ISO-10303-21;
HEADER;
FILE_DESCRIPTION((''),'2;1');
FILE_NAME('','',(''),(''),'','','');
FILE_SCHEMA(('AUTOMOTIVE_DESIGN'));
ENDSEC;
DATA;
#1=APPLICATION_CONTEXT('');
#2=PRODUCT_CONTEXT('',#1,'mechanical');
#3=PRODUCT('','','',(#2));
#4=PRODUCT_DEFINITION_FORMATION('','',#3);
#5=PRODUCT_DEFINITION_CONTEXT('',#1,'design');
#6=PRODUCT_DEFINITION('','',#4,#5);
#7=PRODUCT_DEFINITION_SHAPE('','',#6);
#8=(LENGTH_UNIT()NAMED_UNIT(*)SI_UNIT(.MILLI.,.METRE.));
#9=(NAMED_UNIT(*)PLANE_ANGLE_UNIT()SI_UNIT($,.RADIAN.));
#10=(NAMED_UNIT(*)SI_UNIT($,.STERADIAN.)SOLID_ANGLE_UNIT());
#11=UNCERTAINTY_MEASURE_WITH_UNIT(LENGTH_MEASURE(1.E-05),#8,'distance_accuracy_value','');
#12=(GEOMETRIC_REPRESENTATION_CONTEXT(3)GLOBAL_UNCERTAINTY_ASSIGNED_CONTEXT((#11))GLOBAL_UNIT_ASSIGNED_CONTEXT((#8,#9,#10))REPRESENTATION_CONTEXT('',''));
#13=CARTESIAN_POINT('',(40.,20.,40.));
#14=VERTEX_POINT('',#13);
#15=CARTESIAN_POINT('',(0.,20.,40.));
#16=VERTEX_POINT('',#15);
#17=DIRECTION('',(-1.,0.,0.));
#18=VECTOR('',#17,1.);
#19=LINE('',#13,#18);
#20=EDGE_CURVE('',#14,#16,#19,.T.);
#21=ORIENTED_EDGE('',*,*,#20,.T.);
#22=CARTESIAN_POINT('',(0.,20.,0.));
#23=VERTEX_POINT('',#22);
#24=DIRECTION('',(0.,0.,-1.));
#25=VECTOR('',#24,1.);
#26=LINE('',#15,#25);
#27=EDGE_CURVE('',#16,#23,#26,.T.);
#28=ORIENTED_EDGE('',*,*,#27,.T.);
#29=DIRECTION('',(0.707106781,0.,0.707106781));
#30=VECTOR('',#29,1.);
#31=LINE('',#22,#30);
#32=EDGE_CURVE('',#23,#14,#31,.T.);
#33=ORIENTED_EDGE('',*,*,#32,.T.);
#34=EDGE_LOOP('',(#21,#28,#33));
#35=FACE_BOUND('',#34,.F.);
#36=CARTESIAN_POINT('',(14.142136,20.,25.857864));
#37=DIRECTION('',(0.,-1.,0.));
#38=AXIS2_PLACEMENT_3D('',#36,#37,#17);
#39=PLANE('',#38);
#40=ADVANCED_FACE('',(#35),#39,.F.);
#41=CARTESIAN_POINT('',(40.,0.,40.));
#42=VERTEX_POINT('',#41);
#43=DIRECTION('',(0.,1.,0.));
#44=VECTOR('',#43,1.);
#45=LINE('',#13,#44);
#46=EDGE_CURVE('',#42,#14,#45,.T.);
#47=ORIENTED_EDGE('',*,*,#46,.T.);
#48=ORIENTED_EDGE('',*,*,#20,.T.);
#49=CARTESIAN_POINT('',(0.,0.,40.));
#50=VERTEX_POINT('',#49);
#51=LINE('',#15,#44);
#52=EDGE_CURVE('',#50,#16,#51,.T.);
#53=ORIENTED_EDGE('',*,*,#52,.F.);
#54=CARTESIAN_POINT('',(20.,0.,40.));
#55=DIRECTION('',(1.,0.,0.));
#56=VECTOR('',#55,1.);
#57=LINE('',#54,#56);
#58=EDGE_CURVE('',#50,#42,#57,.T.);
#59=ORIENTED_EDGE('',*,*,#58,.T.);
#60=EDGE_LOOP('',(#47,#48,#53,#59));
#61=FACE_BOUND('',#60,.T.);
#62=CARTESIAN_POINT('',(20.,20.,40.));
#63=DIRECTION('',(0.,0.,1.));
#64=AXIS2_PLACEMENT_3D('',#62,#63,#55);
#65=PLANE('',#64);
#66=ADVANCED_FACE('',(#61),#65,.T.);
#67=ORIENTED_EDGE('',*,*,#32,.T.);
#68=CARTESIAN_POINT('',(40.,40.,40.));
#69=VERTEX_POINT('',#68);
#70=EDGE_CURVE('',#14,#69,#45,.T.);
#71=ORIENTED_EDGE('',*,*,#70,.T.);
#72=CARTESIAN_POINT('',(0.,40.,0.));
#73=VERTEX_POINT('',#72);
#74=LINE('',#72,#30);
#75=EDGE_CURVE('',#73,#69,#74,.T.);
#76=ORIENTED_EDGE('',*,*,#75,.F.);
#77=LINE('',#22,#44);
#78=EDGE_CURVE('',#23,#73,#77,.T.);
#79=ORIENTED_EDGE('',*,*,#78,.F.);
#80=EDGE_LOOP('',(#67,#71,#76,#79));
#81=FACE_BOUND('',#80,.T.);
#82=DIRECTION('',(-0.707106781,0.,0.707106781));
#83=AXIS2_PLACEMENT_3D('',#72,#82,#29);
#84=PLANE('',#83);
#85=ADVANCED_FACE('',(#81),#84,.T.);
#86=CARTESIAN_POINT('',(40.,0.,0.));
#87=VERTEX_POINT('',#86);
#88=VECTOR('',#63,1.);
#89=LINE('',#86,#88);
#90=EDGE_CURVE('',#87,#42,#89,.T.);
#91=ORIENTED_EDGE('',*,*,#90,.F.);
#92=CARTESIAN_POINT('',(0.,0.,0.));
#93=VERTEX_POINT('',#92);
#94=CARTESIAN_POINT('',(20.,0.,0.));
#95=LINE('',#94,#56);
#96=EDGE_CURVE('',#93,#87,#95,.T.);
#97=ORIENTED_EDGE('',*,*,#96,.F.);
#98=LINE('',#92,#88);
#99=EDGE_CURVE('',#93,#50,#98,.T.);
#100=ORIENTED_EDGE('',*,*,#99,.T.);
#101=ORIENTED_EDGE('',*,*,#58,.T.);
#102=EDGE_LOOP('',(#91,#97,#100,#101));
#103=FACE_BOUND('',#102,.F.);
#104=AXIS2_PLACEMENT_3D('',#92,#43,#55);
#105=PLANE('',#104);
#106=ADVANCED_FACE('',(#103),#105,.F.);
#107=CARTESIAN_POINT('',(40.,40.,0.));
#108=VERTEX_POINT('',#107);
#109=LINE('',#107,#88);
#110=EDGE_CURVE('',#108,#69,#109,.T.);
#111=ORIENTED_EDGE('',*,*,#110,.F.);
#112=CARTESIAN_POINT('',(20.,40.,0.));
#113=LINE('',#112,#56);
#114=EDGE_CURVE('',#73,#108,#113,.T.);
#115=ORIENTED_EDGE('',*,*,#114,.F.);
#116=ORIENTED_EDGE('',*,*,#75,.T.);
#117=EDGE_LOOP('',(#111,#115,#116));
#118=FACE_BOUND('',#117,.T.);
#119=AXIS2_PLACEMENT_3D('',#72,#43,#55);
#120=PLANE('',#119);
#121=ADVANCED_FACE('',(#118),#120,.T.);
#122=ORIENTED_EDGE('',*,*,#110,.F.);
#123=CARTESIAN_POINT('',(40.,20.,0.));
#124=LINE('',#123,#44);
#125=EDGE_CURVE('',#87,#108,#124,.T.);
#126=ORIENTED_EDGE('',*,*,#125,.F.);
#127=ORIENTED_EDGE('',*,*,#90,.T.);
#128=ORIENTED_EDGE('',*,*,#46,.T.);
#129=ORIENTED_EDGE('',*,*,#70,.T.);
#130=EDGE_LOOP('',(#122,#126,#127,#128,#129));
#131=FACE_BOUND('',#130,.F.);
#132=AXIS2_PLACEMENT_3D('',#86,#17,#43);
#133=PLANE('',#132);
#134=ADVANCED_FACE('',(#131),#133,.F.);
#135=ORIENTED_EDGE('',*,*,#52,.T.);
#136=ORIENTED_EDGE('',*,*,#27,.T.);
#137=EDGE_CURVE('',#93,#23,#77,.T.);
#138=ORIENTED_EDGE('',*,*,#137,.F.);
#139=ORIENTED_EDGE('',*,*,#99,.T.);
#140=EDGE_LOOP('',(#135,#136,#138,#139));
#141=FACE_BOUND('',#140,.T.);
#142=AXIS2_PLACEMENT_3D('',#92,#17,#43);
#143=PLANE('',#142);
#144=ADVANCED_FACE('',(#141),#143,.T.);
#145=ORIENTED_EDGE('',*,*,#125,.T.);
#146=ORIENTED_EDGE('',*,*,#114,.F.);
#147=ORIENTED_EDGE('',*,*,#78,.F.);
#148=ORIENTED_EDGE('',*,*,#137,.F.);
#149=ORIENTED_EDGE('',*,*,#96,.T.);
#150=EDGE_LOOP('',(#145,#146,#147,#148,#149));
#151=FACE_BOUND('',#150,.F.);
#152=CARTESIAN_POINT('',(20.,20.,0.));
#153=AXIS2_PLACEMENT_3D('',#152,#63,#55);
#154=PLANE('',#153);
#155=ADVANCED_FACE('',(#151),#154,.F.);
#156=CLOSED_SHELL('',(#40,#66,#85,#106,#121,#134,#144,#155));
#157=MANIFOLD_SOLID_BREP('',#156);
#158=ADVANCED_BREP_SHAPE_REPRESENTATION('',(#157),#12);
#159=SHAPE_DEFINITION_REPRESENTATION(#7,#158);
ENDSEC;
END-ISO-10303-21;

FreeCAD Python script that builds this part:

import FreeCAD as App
import Part
import Sketcher
from FreeCAD import Vector
Q = App.Units.Quantity


def add_polygon(sketch, points):
    """Adds a closed chain of lines whose ends are joined by coincident constraints."""
    first, n = sketch.GeometryCount, len(points)
    for a, b in zip(points, points[1:] + points[:1]):
        sketch.addGeometry(Part.LineSegment(App.Vector(*a, 0), App.Vector(*b, 0)), False)
    for i in range(n):
        sketch.addConstraint(Sketcher.Constraint("Coincident", first + i, 2, first + (i + 1) % n, 1))

doc = App.newDocument("Part")
body = doc.addObject("PartDesign::Body", "Body")

sketch1 = body.newObject("Sketcher::SketchObject", "Sketch")
sketch1.AttachmentSupport = (doc.getObject("XY_Plane"), [""])
sketch1.MapMode = "FlatFace"
add_polygon(sketch1, [(0, 40), (0, 0), (40, 0), (40, 40)])
sketch1.addConstraint([
    Sketcher.Constraint("Vertical", 0),
    Sketcher.Constraint("Horizontal", 1),
    Sketcher.Constraint("Vertical", 2),
    Sketcher.Constraint("Horizontal", 3),
    Sketcher.Constraint("Coincident", 0, 2, -1, 1),
    Sketcher.Constraint("Equal", 3, 0),
    Sketcher.Constraint("DistanceX", 1, 1, 1, 2, Q("40 mm")),
])
pad1 = body.newObject("PartDesign::Pad", "Pad")
pad1.Profile = sketch1
pad1.Length = 40

sketch2 = body.newObject("Sketcher::SketchObject", "Sketch001")
sketch2.AttachmentSupport = (doc.getObject("XZ_Plane"), [""])
sketch2.MapMode = "FlatFace"
sketch2.AttachmentOffset = App.Placement(Vector(0, 0, -40), App.Rotation())
add_polygon(sketch2, [(40, 40), (0, 0), (0, 40)])
sketch2.addConstraint([
    Sketcher.Constraint("Vertical", 1),
    Sketcher.Constraint("Horizontal", 2),
    Sketcher.Constraint("Coincident", 0, 2, -1, 1),
    Sketcher.Constraint("Equal", 2, 1),
    Sketcher.Constraint("DistanceX", 2, 1, 2, 2, Q("40 mm")),
])
pocket1 = body.newObject("PartDesign::Pocket", "Pocket")
pocket1.Profile = sketch2
pocket1.Length = 20
pocket1.Reversed = True

doc.recompute()
